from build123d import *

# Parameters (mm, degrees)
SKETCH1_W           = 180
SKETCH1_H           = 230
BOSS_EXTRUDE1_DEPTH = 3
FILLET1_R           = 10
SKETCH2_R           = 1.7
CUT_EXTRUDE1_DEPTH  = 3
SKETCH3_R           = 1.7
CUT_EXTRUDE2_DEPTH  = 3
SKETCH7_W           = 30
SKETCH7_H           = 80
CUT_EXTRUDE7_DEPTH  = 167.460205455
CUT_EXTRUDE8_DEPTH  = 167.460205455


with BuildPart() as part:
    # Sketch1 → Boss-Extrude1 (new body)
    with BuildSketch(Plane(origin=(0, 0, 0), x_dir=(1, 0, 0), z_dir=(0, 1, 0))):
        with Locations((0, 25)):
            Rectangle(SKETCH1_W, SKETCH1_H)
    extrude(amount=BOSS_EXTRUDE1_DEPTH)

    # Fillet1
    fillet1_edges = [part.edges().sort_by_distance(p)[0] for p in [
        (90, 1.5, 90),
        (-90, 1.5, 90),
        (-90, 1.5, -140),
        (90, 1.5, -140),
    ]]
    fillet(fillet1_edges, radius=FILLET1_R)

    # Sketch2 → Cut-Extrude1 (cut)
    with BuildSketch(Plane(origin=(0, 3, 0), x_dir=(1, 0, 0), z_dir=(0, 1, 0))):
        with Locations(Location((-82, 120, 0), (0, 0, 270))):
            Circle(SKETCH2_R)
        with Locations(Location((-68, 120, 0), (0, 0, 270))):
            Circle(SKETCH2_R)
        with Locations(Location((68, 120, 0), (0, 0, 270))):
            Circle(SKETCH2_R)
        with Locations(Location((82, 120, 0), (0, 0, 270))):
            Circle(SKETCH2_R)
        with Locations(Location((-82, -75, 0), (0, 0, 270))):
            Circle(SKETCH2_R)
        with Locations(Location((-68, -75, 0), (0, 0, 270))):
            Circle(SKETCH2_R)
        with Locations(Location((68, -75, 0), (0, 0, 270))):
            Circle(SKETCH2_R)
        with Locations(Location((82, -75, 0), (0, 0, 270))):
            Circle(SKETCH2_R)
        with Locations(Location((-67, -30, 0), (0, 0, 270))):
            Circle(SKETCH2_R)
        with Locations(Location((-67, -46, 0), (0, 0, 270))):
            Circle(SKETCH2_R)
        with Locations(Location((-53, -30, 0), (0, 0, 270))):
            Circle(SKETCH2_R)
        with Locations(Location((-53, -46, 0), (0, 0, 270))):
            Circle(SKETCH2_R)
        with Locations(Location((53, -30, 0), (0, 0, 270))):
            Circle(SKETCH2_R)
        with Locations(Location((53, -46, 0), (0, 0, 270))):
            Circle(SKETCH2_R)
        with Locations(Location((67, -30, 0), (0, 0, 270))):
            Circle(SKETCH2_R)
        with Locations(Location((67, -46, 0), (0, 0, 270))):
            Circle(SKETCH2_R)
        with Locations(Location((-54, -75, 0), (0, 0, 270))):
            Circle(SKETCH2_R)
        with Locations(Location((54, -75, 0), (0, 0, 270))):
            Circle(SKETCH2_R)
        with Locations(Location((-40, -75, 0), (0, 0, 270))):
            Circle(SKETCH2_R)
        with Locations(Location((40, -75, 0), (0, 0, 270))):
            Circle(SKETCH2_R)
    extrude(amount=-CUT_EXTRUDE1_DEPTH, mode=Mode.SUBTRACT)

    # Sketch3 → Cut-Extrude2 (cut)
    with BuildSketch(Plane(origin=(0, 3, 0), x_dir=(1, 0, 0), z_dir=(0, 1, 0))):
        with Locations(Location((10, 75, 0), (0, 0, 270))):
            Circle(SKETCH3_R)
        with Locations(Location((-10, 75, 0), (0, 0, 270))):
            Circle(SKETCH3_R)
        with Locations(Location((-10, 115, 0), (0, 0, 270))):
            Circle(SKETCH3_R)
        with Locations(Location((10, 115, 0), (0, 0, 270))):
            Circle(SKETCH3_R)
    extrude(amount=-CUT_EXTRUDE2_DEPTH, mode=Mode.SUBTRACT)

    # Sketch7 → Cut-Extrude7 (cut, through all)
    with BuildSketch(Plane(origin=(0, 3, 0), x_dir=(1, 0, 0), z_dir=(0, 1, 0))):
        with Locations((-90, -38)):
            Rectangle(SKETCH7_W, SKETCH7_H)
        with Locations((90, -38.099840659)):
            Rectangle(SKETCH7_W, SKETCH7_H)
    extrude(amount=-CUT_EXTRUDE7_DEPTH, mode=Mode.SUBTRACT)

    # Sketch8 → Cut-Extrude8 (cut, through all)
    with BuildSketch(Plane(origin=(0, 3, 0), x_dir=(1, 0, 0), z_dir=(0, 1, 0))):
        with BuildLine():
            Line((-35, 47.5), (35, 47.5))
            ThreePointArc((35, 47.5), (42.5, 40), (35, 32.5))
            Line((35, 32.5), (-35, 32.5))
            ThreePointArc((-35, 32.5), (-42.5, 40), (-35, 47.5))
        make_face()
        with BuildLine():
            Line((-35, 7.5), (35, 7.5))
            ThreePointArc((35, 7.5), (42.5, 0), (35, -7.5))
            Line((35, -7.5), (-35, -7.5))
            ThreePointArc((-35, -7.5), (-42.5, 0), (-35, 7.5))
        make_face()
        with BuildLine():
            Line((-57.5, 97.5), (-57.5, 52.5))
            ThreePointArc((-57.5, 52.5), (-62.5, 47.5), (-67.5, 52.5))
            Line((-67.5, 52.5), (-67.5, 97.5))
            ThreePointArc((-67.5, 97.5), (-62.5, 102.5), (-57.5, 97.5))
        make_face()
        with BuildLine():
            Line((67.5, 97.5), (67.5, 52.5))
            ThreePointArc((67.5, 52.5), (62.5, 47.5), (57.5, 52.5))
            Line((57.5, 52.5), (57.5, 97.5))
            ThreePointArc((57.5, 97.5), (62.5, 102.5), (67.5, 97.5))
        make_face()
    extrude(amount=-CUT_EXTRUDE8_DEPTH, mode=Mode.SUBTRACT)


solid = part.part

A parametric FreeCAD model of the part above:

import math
import FreeCAD as App
import Part
import Sketcher
from FreeCAD import Vector
Q = App.Units.Quantity


def edges_at(feature, points):
    """Names of the edges that pass closest to the given points."""
    edges = feature.Shape.Edges
    near = lambda p: min(range(len(edges)), key=lambda i: edges[i].distToShape(Part.Vertex(*p))[0])
    return sorted({f"Edge{near(p) + 1}" for p in points})


def add_polygon(sketch, points):
    """Adds a closed chain of lines whose ends are joined by coincident constraints."""
    first, n = sketch.GeometryCount, len(points)
    for a, b in zip(points, points[1:] + points[:1]):
        sketch.addGeometry(Part.LineSegment(App.Vector(*a, 0), App.Vector(*b, 0)), False)
    for i in range(n):
        sketch.addConstraint(Sketcher.Constraint("Coincident", first + i, 2, first + (i + 1) % n, 1))

doc = App.newDocument("Part")
body = doc.addObject("PartDesign::Body", "Body")

# Sketch on XZ plane
sketch1 = body.newObject("Sketcher::SketchObject", "Sketch")
sketch1.AttachmentSupport = (doc.getObject("XZ_Plane"), [""])
sketch1.MapMode = "FlatFace"
add_polygon(sketch1, [(-90, -140), (-90, 90), (90, 90), (90, -140)])  # lines 0-3
sketch1.addConstraint([
    Sketcher.Constraint("Vertical", 0),
    Sketcher.Constraint("Horizontal", 1),
    Sketcher.Constraint("Vertical", 2),
    Sketcher.Constraint("Horizontal", 3),
    Sketcher.Constraint("DistanceX", 1, 1, 1, 2, Q("180 mm")),
    Sketcher.Constraint("DistanceY", 0, 1, 0, 2, Q("230 mm")),
    Sketcher.Constraint("DistanceX", 0, 2, -1, 1, Q("90 mm")),
    Sketcher.Constraint("DistanceY", -1, 1, 0, 2, Q("90 mm")),
])
pad1 = body.newObject("PartDesign::Pad", "Pad")
pad1.Profile = sketch1
pad1.Length = 3
pad1.Reversed = True
doc.recompute()

fillet = body.newObject("PartDesign::Fillet", "Fillet")
fillet.Base = (pad1, edges_at(pad1, [
    (90, 1.5, 90),
    (-90, 1.5, 90),
    (-90, 1.5, -140),
    (90, 1.5, -140),
]))
fillet.Radius = 10

# Sketch on XZ plane
sketch2 = body.newObject("Sketcher::SketchObject", "Sketch001")
sketch2.AttachmentSupport = (doc.getObject("XZ_Plane"), [""])
sketch2.MapMode = "FlatFace"
sketch2.AttachmentOffset = App.Placement(Vector(0, 0, -3), App.Rotation())
sketch2.addGeometry([
    Part.Circle(Vector(-82, -120, 0), Vector(0, 0, 1), 1.7),  # 0
    Part.Circle(Vector(-68, -120, 0), Vector(0, 0, 1), 1.7),  # 1
    Part.Circle(Vector(68, -120, 0), Vector(0, 0, 1), 1.7),  # 2
    Part.Circle(Vector(82, -120, 0), Vector(0, 0, 1), 1.7),  # 3
    Part.Circle(Vector(-82, 75, 0), Vector(0, 0, 1), 1.7),  # 4
    Part.Circle(Vector(-68, 75, 0), Vector(0, 0, 1), 1.7),  # 5
    Part.Circle(Vector(68, 75, 0), Vector(0, 0, 1), 1.7),  # 6
    Part.Circle(Vector(82, 75, 0), Vector(0, 0, 1), 1.7),  # 7
    Part.Circle(Vector(-67, 30, 0), Vector(0, 0, 1), 1.7),  # 8
    Part.Circle(Vector(-67, 46, 0), Vector(0, 0, 1), 1.7),  # 9
    Part.Circle(Vector(-53, 30, 0), Vector(0, 0, 1), 1.7),  # 10
    Part.Circle(Vector(-53, 46, 0), Vector(0, 0, 1), 1.7),  # 11
    Part.Circle(Vector(53, 30, 0), Vector(0, 0, 1), 1.7),  # 12
    Part.Circle(Vector(53, 46, 0), Vector(0, 0, 1), 1.7),  # 13
    Part.Circle(Vector(67, 30, 0), Vector(0, 0, 1), 1.7),  # 14
    Part.Circle(Vector(67, 46, 0), Vector(0, 0, 1), 1.7),  # 15
    Part.Circle(Vector(-54, 75, 0), Vector(0, 0, 1), 1.7),  # 16
    Part.Circle(Vector(54, 75, 0), Vector(0, 0, 1), 1.7),  # 17
    Part.Circle(Vector(-40, 75, 0), Vector(0, 0, 1), 1.7),  # 18
    Part.Circle(Vector(40, 75, 0), Vector(0, 0, 1), 1.7),  # 19
], False)
sketch2.addConstraint([
    Sketcher.Constraint("Equal", 0, 1),
    Sketcher.Constraint("Equal", 1, 2),
    Sketcher.Constraint("Equal", 2, 3),
    Sketcher.Constraint("Equal", 3, 4),
    Sketcher.Constraint("Equal", 4, 5),
    Sketcher.Constraint("Equal", 5, 6),
    Sketcher.Constraint("Equal", 6, 7),
    Sketcher.Constraint("Equal", 7, 8),
    Sketcher.Constraint("Equal", 8, 9),
    Sketcher.Constraint("Equal", 9, 10),
    Sketcher.Constraint("Equal", 10, 11),
    Sketcher.Constraint("Equal", 11, 12),
    Sketcher.Constraint("Equal", 12, 13),
    Sketcher.Constraint("Equal", 13, 14),
    Sketcher.Constraint("Equal", 14, 15),
    Sketcher.Constraint("Equal", 15, 16),
    Sketcher.Constraint("Equal", 16, 17),
    Sketcher.Constraint("Equal", 17, 18),
    Sketcher.Constraint("Equal", 18, 19),
    Sketcher.Constraint("Symmetric", 1, 3, 2, 3, -2),
    Sketcher.Constraint("Symmetric", 0, 3, 3, 3, -2),
    Sketcher.Constraint("Symmetric", 5, 3, 6, 3, -2),
    Sketcher.Constraint("Symmetric", 4, 3, 7, 3, -2),
    Sketcher.Constraint("Symmetric", 10, 3, 12, 3, -2),
    Sketcher.Constraint("Symmetric", 11, 3, 13, 3, -2),
    Sketcher.Constraint("Symmetric", 8, 3, 14, 3, -2),
    Sketcher.Constraint("Symmetric", 9, 3, 15, 3, -2),
    Sketcher.Constraint("Symmetric", 16, 3, 17, 3, -2),
    Sketcher.Constraint("Symmetric", 18, 3, 19, 3, -2),
    Sketcher.Constraint("Horizontal", 0, 3, 1, 3),
    Sketcher.Constraint("Horizontal", 4, 3, 5, 3),
    Sketcher.Constraint("Horizontal", 8, 3, 10, 3),
    Sketcher.Constraint("Horizontal", 9, 3, 11, 3),
    Sketcher.Constraint("Horizontal", 7, 3, 16, 3),
    Sketcher.Constraint("Horizontal", 17, 3, 18, 3),
    Sketcher.Constraint("Vertical", 0, 3, 4, 3),
    Sketcher.Constraint("Vertical", 1, 3, 5, 3),
    Sketcher.Constraint("Vertical", 8, 3, 9, 3),
    Sketcher.Constraint("Vertical", 10, 3, 11, 3),
    Sketcher.Constraint("Diameter", 0, Q("3.4 mm")),
    Sketcher.Constraint("DistanceX", 0, 3, -1, 1, Q("82 mm")),
    Sketcher.Constraint("DistanceY", 0, 3, -1, 1, Q("120 mm")),
    Sketcher.Constraint("DistanceX", 1, 3, -1, 1, Q("68 mm")),
    Sketcher.Constraint("DistanceY", -1, 1, 4, 3, Q("75 mm")),
    Sketcher.Constraint("DistanceX", 8, 3, -1, 1, Q("67 mm")),
    Sketcher.Constraint("DistanceY", -1, 1, 8, 3, Q("30 mm")),
    Sketcher.Constraint("DistanceY", -1, 1, 9, 3, Q("46 mm")),
    Sketcher.Constraint("DistanceX", 10, 3, -1, 1, Q("53 mm")),
    Sketcher.Constraint("DistanceX", 16, 3, -1, 1, Q("54 mm")),
    Sketcher.Constraint("DistanceX", 18, 3, -1, 1, Q("40 mm")),
])
pocket1 = body.newObject("PartDesign::Pocket", "Pocket")
pocket1.Profile = sketch2
pocket1.Length = 3
pocket1.Reversed = True

# Sketch on XZ plane
sketch3 = body.newObject("Sketcher::SketchObject", "Sketch002")
sketch3.AttachmentSupport = (doc.getObject("XZ_Plane"), [""])
sketch3.MapMode = "FlatFace"
sketch3.AttachmentOffset = App.Placement(Vector(0, 0, -3), App.Rotation())
sketch3.addGeometry([
    Part.Circle(Vector(10, -75, 0), Vector(0, 0, 1), 1.7),
    Part.Circle(Vector(-10, -75, 0), Vector(0, 0, 1), 1.7),
    Part.Circle(Vector(-10, -115, 0), Vector(0, 0, 1), 1.7),
    Part.Circle(Vector(10, -115, 0), Vector(0, 0, 1), 1.7),
], False)
sketch3.addConstraint([
    Sketcher.Constraint("Equal", 0, 1),
    Sketcher.Constraint("Equal", 1, 2),
    Sketcher.Constraint("Equal", 2, 3),
    Sketcher.Constraint("Symmetric", 0, 3, 1, 3, -2),
    Sketcher.Constraint("Symmetric", 2, 3, 3, 3, -2),
    Sketcher.Constraint("Vertical", 1, 3, 2, 3),
    Sketcher.Constraint("Diameter", 0, Q("3.4 mm")),
    Sketcher.Constraint("DistanceX", -1, 1, 0, 3, Q("10 mm")),
    Sketcher.Constraint("DistanceY", 0, 3, -1, 1, Q("75 mm")),
    Sketcher.Constraint("DistanceY", 2, 3, -1, 1, Q("115 mm")),
])
pocket2 = body.newObject("PartDesign::Pocket", "Pocket001")
pocket2.Profile = sketch3
pocket2.Length = 3
pocket2.Reversed = True

# Sketch on XZ plane
sketch4 = body.newObject("Sketcher::SketchObject", "Sketch003")
sketch4.AttachmentSupport = (doc.getObject("XZ_Plane"), [""])
sketch4.MapMode = "FlatFace"
sketch4.AttachmentOffset = App.Placement(Vector(0, 0, -3), App.Rotation())
add_polygon(sketch4, [(-105, -2), (-105, 78), (-75, 78), (-75, -2)])  # lines 0-3
add_polygon(sketch4, [(75, -2), (75, 78), (105, 78), (105, -2)])  # lines 4-7
sketch4.addConstraint([
    Sketcher.Constraint("Vertical", 0),
    Sketcher.Constraint("Horizontal", 1),
    Sketcher.Constraint("Vertical", 2),
    Sketcher.Constraint("Horizontal", 3),
    Sketcher.Constraint("Vertical", 4),
    Sketcher.Constraint("Horizontal", 5),
    Sketcher.Constraint("Vertical", 6),
    Sketcher.Constraint("Horizontal", 7),
    Sketcher.Constraint("Equal", 3, 5),
    Sketcher.Constraint("Equal", 2, 4),
    Sketcher.Constraint("DistanceX", 1, 1, 1, 2, Q("30 mm")),
    Sketcher.Constraint("DistanceY", 0, 1, 0, 2, Q("80 mm")),
    Sketcher.Constraint("DistanceX", 0, 2, -1, 1, Q("105 mm")),
    Sketcher.Constraint("DistanceY", -1, 1, 0, 2, Q("78 mm")),
    Sketcher.Constraint("DistanceX", -1, 1, 4, 2, Q("75 mm")),
    Sketcher.Constraint("DistanceY", -1, 1, 4, 2, Q("78.099841 mm")),
])
pocket3 = body.newObject("PartDesign::Pocket", "Pocket002")
pocket3.Profile = sketch4
pocket3.Type = "ThroughAll"
pocket3.Reversed = True

# Sketch on XZ plane
sketch5 = body.newObject("Sketcher::SketchObject", "Sketch004")
sketch5.AttachmentSupport = (doc.getObject("XZ_Plane"), [""])
sketch5.MapMode = "FlatFace"
sketch5.AttachmentOffset = App.Placement(Vector(0, 0, -3), App.Rotation())
sketch5.addGeometry([
    Part.LineSegment(Vector(35, -48, 0), Vector(-35, -48, 0)),  # 0
    Part.ArcOfCircle(Part.Circle(Vector(-35, -40, 0), Vector(0, 0, 1), 8), math.radians(90), math.radians(270)),  # 1
    Part.LineSegment(Vector(-35, -32, 0), Vector(35, -32, 0)),  # 2
    Part.ArcOfCircle(Part.Circle(Vector(35, -40, 0), Vector(0, 0, 1), 8), math.radians(-90), math.radians(90)),  # 3
    Part.LineSegment(Vector(35, -8, 0), Vector(-35, -8, 0)),  # 4
    Part.ArcOfCircle(Part.Circle(Vector(-35, 0, 0), Vector(0, 0, 1), 8), math.radians(90), math.radians(270)),  # 5
    Part.LineSegment(Vector(-35, 8, 0), Vector(35, 8, 0)),  # 6
    Part.ArcOfCircle(Part.Circle(Vector(35, 0, 0), Vector(0, 0, 1), 8), math.radians(-90), math.radians(90)),  # 7
    Part.LineSegment(Vector(-58, -52, 0), Vector(-58, -98, 0)),  # 8
    Part.ArcOfCircle(Part.Circle(Vector(-62, -98, 0), Vector(0, 0, 1), 5), math.radians(180), math.radians(360)),  # 9
    Part.LineSegment(Vector(-68, -98, 0), Vector(-68, -52, 0)),  # 10
    Part.ArcOfCircle(Part.Circle(Vector(-62, -52, 0), Vector(0, 0, 1), 5), math.radians(0), math.radians(180)),  # 11
    Part.LineSegment(Vector(68, -52, 0), Vector(68, -98, 0)),  # 12
    Part.ArcOfCircle(Part.Circle(Vector(62, -98, 0), Vector(0, 0, 1), 5), math.radians(180), math.radians(360)),  # 13
    Part.LineSegment(Vector(58, -98, 0), Vector(58, -52, 0)),  # 14
    Part.ArcOfCircle(Part.Circle(Vector(62, -52, 0), Vector(0, 0, 1), 5), math.radians(0), math.radians(180)),  # 15
], False)
sketch5.addConstraint([
    Sketcher.Constraint("Tangent", 0, 2, 1, 2),
    Sketcher.Constraint("Tangent", 1, 1, 2, 1),
    Sketcher.Constraint("Tangent", 2, 2, 3, 2),
    Sketcher.Constraint("Tangent", 3, 1, 0, 1),
    Sketcher.Constraint("Tangent", 4, 2, 5, 2),
    Sketcher.Constraint("Tangent", 5, 1, 6, 1),
    Sketcher.Constraint("Tangent", 6, 2, 7, 2),
    Sketcher.Constraint("Tangent", 7, 1, 4, 1),
    Sketcher.Constraint("Tangent", 8, 2, 9, 2),
    Sketcher.Constraint("Tangent", 9, 1, 10, 1),
    Sketcher.Constraint("Tangent", 10, 2, 11, 2),
    Sketcher.Constraint("Tangent", 11, 1, 8, 1),
    Sketcher.Constraint("Tangent", 12, 2, 13, 2),
    Sketcher.Constraint("Tangent", 13, 1, 14, 1),
    Sketcher.Constraint("Tangent", 14, 2, 15, 2),
    Sketcher.Constraint("Tangent", 15, 1, 12, 1),
    Sketcher.Constraint("Horizontal", 0),
    Sketcher.Constraint("Horizontal", 2),
    Sketcher.Constraint("Horizontal", 4),
    Sketcher.Constraint("Horizontal", 6),
    Sketcher.Constraint("Vertical", 8),
    Sketcher.Constraint("Vertical", 10),
    Sketcher.Constraint("Vertical", 12),
    Sketcher.Constraint("Vertical", 14),
    Sketcher.Constraint("Equal", 3, 5),
    Sketcher.Constraint("Equal", 11, 13),
    Sketcher.Constraint("Symmetric", 5, 3, 7, 3, -1, 1),
    Sketcher.Constraint("Symmetric", 9, 3, 13, 3, -2),
    Sketcher.Constraint("Horizontal", 11, 3, 15, 3),
    Sketcher.Constraint("Vertical", 1, 3, 5, 3),
    Sketcher.Constraint("Vertical", 3, 3, 7, 3),
    Sketcher.Constraint("Radius", 9, Q("5 mm")),
    Sketcher.Constraint("Radius", 1, Q("7.5 mm")),
    Sketcher.Constraint("DistanceX", 0, 2, 0, 1, Q("70 mm")),
    Sketcher.Constraint("DistanceY", 8, 2, 8, 1, Q("45 mm")),
    Sketcher.Constraint("DistanceY", 1, 3, -1, 1, Q("40 mm")),
    Sketcher.Constraint("DistanceX", 9, 3, 13, 3, Q("125 mm")),
    Sketcher.Constraint("DistanceY", 11, 3, 0, 2, Q("5 mm")),
])
pocket4 = body.newObject("PartDesign::Pocket", "Pocket003")
pocket4.Profile = sketch5
pocket4.Type = "ThroughAll"
pocket4.Reversed = True

doc.recompute()
